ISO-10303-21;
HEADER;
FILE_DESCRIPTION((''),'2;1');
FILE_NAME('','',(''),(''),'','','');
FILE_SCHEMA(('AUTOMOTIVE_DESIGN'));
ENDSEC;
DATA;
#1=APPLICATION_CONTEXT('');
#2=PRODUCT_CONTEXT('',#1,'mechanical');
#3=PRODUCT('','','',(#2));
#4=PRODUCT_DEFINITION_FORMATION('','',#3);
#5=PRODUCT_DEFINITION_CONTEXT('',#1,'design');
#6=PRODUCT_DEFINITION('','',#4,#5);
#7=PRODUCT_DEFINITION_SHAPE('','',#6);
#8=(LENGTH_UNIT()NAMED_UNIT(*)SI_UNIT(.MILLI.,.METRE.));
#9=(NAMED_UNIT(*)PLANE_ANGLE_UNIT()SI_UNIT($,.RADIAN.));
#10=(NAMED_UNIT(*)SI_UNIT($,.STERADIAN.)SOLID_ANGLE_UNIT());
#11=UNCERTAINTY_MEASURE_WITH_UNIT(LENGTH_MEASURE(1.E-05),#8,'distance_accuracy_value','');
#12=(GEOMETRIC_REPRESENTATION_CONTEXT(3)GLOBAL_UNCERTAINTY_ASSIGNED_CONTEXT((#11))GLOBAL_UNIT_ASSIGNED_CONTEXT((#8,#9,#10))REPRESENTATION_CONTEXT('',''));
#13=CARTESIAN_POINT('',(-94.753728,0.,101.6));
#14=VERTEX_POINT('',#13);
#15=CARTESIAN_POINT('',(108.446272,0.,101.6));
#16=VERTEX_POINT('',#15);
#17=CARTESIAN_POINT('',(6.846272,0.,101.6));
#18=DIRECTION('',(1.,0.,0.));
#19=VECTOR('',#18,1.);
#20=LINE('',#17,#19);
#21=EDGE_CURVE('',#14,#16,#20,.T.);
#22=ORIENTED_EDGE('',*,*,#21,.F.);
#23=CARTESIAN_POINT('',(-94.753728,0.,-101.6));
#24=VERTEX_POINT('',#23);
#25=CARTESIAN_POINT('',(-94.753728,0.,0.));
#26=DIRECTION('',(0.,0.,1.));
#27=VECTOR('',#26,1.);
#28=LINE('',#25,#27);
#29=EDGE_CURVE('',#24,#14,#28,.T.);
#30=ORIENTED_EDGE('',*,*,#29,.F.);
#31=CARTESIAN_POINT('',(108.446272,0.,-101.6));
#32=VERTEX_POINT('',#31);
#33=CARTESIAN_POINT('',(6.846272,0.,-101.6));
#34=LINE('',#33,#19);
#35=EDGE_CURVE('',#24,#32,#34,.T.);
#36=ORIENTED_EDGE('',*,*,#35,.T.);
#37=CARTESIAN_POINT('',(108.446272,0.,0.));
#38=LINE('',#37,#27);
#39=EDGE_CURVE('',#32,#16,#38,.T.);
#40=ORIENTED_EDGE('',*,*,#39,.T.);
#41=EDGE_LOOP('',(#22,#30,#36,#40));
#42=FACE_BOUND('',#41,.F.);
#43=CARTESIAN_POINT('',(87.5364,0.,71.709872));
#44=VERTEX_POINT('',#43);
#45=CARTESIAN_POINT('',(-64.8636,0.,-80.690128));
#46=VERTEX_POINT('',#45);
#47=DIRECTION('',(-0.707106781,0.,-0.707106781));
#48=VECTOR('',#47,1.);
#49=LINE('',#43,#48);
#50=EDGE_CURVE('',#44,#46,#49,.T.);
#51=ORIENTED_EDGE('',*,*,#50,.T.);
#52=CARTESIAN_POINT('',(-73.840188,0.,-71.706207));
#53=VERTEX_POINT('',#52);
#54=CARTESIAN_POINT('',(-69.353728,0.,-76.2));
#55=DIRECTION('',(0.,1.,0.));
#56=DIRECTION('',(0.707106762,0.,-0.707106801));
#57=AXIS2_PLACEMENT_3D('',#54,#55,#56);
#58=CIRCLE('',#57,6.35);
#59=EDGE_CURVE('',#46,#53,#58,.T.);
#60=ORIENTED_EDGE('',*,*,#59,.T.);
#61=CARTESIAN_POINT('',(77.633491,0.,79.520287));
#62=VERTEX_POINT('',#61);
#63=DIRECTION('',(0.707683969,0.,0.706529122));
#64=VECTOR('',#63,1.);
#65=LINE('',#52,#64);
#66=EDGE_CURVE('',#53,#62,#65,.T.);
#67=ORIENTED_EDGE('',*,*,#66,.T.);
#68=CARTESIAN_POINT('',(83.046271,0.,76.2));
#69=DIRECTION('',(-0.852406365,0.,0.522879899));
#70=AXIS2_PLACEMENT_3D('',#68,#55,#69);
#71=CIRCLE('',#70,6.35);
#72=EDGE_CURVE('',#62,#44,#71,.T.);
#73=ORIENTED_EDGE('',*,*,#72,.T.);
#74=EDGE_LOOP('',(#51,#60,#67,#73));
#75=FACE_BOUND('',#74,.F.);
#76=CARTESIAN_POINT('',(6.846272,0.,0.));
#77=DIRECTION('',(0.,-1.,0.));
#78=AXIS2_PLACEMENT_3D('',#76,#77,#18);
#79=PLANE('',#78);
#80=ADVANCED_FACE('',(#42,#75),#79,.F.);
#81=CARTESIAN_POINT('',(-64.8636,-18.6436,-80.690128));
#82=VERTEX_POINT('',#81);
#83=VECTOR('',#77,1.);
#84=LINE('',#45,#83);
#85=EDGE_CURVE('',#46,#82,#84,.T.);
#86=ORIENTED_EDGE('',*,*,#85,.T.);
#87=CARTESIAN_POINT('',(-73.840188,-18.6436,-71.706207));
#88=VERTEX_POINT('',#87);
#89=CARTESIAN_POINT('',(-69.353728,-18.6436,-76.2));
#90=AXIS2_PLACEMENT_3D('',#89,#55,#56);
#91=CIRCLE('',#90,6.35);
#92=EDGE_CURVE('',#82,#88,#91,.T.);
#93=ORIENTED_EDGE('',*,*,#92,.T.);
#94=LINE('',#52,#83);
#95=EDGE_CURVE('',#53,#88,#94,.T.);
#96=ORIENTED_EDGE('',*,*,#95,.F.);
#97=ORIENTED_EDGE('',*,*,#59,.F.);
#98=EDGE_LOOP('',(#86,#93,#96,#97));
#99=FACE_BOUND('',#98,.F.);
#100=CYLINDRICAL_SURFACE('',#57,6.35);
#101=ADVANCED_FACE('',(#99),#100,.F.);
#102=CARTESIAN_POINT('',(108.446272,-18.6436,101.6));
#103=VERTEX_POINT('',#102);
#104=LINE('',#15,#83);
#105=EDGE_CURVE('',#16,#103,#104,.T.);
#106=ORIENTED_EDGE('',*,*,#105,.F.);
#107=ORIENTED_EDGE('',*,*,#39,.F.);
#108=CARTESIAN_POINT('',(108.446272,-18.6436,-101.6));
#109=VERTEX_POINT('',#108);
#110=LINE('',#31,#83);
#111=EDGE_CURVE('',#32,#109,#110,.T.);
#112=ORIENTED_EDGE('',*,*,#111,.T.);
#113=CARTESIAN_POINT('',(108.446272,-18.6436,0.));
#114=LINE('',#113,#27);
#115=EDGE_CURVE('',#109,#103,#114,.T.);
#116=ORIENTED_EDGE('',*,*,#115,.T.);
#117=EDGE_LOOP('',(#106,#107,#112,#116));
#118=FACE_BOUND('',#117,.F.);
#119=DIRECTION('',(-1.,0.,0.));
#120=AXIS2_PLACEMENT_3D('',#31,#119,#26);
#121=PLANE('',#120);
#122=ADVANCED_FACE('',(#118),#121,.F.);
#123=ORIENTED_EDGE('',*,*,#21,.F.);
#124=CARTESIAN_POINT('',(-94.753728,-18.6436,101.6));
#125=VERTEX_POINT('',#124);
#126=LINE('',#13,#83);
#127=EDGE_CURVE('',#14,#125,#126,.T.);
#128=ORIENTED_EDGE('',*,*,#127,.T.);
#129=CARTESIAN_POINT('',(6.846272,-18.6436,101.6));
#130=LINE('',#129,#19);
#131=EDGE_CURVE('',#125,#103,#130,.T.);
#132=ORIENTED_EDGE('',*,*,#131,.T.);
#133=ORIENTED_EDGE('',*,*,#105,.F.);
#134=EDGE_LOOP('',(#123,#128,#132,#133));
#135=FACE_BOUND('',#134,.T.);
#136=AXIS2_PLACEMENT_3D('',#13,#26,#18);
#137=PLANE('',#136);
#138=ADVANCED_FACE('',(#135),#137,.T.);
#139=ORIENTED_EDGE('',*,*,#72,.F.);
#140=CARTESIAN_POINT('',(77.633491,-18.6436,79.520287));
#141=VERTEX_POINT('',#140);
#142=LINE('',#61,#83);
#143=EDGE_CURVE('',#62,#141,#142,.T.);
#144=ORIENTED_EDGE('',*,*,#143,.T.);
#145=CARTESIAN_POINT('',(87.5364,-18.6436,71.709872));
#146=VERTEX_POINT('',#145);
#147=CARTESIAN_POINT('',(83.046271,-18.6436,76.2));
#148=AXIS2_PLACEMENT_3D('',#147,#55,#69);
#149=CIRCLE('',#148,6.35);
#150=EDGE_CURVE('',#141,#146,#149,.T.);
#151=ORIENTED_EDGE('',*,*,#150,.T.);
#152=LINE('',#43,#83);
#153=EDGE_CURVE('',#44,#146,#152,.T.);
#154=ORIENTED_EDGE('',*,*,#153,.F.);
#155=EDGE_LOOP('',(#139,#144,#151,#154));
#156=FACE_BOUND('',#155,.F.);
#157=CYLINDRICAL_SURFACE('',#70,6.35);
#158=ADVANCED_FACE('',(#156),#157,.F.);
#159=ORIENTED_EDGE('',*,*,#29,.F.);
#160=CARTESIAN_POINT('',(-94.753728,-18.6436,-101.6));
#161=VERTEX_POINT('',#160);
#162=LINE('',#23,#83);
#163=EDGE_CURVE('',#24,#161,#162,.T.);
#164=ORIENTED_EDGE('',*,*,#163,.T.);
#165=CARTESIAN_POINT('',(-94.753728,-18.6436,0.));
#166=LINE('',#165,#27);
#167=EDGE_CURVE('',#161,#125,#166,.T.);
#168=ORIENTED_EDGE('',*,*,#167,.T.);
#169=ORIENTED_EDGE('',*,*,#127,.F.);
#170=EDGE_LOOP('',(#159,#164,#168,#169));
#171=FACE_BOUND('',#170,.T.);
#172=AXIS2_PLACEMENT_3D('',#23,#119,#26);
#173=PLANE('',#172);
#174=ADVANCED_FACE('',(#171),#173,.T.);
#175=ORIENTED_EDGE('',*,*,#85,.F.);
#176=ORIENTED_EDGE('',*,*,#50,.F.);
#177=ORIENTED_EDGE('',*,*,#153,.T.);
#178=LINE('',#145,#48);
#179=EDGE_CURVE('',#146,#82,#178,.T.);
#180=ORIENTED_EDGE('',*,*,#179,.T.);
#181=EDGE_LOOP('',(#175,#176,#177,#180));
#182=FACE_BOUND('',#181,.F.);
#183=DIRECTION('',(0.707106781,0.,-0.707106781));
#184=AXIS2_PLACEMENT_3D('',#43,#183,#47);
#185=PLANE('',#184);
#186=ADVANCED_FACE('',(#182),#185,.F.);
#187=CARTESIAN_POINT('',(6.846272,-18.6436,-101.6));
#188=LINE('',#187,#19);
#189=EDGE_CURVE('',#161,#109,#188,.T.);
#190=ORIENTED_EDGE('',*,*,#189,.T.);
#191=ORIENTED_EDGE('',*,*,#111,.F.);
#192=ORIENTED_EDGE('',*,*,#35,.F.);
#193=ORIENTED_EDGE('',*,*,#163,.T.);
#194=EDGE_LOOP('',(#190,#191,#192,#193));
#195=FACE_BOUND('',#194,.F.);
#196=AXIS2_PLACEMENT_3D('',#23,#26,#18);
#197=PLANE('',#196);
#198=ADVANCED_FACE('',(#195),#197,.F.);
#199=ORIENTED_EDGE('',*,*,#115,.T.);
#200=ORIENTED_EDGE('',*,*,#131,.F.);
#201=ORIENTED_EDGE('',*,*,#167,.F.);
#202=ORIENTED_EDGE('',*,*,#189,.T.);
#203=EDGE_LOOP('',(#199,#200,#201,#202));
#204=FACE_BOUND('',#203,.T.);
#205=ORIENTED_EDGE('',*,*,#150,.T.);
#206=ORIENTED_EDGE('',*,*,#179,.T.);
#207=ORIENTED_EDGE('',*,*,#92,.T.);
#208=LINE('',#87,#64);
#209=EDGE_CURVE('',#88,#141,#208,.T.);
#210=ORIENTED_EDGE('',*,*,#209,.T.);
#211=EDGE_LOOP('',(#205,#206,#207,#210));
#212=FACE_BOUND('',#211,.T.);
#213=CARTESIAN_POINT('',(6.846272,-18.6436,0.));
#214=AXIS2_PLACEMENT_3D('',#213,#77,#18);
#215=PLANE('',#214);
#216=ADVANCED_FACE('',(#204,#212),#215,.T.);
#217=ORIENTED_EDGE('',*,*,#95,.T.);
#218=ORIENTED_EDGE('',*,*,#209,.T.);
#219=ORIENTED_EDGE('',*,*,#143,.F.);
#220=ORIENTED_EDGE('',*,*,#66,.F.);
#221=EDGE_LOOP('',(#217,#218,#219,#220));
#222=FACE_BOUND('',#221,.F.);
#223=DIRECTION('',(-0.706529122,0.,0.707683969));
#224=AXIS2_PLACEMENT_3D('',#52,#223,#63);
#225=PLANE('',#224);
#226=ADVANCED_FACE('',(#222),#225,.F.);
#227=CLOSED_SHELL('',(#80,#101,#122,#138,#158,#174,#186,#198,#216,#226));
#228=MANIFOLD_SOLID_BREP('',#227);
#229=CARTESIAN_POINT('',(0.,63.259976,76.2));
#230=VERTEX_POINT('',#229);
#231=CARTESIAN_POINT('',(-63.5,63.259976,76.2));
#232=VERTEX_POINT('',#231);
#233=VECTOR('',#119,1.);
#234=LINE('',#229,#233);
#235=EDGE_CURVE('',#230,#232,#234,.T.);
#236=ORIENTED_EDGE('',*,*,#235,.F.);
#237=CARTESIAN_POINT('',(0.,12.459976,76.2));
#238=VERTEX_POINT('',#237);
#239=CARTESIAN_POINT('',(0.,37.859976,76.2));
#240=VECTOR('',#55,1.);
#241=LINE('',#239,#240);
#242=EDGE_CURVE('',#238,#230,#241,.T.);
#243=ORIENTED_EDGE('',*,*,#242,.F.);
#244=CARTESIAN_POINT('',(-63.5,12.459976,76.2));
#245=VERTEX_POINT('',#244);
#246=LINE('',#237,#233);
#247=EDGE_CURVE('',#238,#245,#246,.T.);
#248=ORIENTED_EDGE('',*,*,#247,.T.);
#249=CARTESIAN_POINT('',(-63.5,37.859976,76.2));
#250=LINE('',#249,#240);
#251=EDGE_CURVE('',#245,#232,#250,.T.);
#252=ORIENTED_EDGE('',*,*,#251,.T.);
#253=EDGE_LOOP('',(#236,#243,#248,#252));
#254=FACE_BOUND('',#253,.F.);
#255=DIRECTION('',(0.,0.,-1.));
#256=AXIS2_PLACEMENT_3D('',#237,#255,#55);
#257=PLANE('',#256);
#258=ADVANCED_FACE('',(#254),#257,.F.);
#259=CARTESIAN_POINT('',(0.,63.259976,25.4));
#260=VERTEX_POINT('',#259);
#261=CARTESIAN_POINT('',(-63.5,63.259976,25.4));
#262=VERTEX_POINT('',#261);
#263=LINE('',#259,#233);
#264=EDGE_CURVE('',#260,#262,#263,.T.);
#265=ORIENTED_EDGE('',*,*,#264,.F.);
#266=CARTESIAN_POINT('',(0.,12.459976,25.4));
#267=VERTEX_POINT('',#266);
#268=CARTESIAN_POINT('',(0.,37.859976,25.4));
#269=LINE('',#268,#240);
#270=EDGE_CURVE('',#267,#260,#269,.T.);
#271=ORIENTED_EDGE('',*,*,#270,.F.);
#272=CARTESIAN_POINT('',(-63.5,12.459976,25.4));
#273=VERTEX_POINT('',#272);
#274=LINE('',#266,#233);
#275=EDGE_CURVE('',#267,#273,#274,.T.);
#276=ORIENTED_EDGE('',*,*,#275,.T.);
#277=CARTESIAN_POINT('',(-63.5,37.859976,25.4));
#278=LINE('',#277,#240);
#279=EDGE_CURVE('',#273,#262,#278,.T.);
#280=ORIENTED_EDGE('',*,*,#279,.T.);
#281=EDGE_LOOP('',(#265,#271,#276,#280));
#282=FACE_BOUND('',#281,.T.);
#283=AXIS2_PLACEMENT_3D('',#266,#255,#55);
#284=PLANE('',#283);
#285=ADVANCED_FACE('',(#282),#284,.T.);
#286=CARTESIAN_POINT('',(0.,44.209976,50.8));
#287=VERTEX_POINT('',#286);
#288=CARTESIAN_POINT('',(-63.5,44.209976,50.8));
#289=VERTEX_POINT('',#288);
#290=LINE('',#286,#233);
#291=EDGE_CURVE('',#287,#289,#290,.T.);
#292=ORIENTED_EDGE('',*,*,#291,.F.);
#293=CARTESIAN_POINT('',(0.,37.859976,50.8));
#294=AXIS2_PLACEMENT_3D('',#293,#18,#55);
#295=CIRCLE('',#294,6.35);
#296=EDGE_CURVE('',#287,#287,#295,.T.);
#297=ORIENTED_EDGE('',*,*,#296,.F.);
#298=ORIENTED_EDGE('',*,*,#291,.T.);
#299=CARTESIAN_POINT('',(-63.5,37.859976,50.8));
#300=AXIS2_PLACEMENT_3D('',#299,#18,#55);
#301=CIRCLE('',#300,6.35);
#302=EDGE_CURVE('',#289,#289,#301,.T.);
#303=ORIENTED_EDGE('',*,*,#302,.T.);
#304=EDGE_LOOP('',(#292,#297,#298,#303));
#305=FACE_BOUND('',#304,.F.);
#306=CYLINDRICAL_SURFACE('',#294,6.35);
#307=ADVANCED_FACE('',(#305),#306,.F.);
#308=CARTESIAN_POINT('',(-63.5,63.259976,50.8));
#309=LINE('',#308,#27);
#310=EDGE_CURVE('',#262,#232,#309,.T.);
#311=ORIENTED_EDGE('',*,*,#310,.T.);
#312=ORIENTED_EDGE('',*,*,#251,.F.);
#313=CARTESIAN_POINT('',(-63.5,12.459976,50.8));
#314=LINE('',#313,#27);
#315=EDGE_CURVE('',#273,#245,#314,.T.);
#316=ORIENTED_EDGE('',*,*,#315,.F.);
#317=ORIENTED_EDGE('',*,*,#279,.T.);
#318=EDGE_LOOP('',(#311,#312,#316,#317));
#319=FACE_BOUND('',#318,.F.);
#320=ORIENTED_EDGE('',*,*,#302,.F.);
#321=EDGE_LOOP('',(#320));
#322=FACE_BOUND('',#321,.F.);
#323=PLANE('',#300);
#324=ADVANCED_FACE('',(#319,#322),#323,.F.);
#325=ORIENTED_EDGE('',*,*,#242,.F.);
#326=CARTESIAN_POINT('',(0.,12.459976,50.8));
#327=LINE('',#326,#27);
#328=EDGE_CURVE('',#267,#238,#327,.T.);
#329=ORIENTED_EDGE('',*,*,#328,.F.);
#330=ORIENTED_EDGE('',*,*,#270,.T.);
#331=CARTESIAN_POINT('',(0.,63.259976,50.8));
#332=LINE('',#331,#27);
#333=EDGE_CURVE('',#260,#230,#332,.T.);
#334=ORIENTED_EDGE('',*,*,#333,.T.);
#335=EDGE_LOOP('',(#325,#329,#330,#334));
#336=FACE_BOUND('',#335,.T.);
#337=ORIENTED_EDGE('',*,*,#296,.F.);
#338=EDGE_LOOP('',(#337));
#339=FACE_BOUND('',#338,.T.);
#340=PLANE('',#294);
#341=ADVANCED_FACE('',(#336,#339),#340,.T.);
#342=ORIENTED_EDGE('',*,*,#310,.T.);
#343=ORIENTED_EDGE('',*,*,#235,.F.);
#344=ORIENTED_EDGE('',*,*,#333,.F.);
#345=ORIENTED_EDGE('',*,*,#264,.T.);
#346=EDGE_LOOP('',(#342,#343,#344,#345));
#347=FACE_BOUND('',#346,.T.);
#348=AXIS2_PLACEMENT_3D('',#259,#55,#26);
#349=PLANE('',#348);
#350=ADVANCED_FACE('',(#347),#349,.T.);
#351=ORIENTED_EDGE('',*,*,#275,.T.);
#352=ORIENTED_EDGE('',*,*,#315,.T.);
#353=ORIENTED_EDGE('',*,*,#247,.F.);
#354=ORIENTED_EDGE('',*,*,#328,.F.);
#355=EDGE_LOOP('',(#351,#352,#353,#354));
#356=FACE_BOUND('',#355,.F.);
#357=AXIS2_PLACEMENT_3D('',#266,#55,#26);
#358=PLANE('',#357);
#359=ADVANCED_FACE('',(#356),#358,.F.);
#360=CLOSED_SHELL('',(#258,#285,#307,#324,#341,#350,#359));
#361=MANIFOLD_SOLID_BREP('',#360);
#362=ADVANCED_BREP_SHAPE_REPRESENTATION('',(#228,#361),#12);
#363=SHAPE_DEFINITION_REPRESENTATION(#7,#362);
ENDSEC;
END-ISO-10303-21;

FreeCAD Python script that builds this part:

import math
import FreeCAD as App
import Part
import Sketcher
from FreeCAD import Vector
Q = App.Units.Quantity


def add_polygon(sketch, points):
    """Adds a closed chain of lines whose ends are joined by coincident constraints."""
    first, n = sketch.GeometryCount, len(points)
    for a, b in zip(points, points[1:] + points[:1]):
        sketch.addGeometry(Part.LineSegment(App.Vector(*a, 0), App.Vector(*b, 0)), False)
    for i in range(n):
        sketch.addConstraint(Sketcher.Constraint("Coincident", first + i, 2, first + (i + 1) % n, 1))

doc = App.newDocument("Part")
params = doc.addObject("Spreadsheet::Sheet", "Params")
for row, (alias, value) in enumerate([
    ("sketch1_width", "8 in"),
    ("sketch1_radius", "0.25 in"),
    ("pad1_length", "0.734 in"),
    ("sketch2_width", "2 in"),
    ("pad2_length", "2.5 in"),
    ("sketch3_diameter", "0.5 in"),
], start=1):
    params.set(f"A{row}", alias)
    params.set(f"B{row}", "=" + value)
    params.setAlias(f"B{row}", alias)

body = doc.addObject("PartDesign::Body", "Body")

# Sketch on XZ plane
sketch1 = doc.addObject("Sketcher::SketchObject", "Sketch")
body.addObject(sketch1)
sketch1.AttachmentSupport = (doc.XZ_Plane, [""])
sketch1.MapMode = "FlatFace"
add_polygon(sketch1, [(-95, 102), (-95, -102), (108, -102), (108, 102)])  # lines 0-3
sketch1.addGeometry(Part.LineSegment(Vector(88, 72, 0), Vector(-65, -81, 0)), False)  # 4
sketch1.addGeometry(Part.ArcOfCircle(Part.Circle(Vector(-69, -76, 0), Vector(0, 0, 1), 6), math.radians(135), math.radians(315)), False)  # 5
sketch1.addGeometry(Part.LineSegment(Vector(-74, -72, 0), Vector(78, 80, 0)), False)  # 6
sketch1.addGeometry(Part.ArcOfCircle(Part.Circle(Vector(83, 76, 0), Vector(0, 0, 1), 6), math.radians(-45), math.radians(148)), False)  # 7
sketch1.addConstraint(Sketcher.Constraint("Tangent", 4, 2, 5, 2))
sketch1.addConstraint(Sketcher.Constraint("Tangent", 5, 1, 6, 1))
sketch1.addConstraint(Sketcher.Constraint("Coincident", 6, 2, 7, 2))
sketch1.addConstraint(Sketcher.Constraint("Tangent", 7, 1, 4, 1))
sketch1.addConstraint(Sketcher.Constraint("Vertical", 0))
sketch1.addConstraint(Sketcher.Constraint("Horizontal", 1))
sketch1.addConstraint(Sketcher.Constraint("Vertical", 2))
sketch1.addConstraint(Sketcher.Constraint("Horizontal", 3))
sketch1.addConstraint(Sketcher.Constraint("Equal", 5, 7))
sketch1.addConstraint(Sketcher.Constraint("Equal", 3, 0))
sketch1.addConstraint(Sketcher.Constraint("DistanceX", 1, 1, 1, 2, Q("8 in")))
sketch1.addConstraint(Sketcher.Constraint("Radius", 5, Q("0.25 in")))
sketch1.addConstraint(Sketcher.Constraint("DistanceY", 5, 3, -1, 1, Q("3 in")))
sketch1.addConstraint(Sketcher.Constraint("DistanceY", -1, 1, 7, 3, Q("3 in")))
sketch1.addConstraint(Sketcher.Constraint("DistanceY", 0, 2, -1, 1, Q("4 in")))
sketch1.addConstraint(Sketcher.Constraint("Angle", 4, Q("-135 deg")))
sketch1.addConstraint(Sketcher.Constraint("DistanceX", 0, 2, 5, 3, Q("1 in")))
sketch1.addConstraint(Sketcher.Constraint("DistanceX", 4, 2, -1, 1, Q("64.8636 mm")))
sketch1.addConstraint(Sketcher.Constraint("DistanceX", -1, 1, 6, 2, Q("77.633491 mm")))
sketch1.setExpression("Constraints[14]", "Params.sketch1_width")
sketch1.setExpression("Constraints[15]", "Params.sketch1_radius")
pad1 = doc.addObject("PartDesign::Pad", "Pad")
body.addObject(pad1)
pad1.Profile = sketch1
pad1.setExpression("Length", "Params.pad1_length")
body2 = doc.addObject("PartDesign::Body", "Body001")

# Sketch on YZ plane
sketch2 = doc.addObject("Sketcher::SketchObject", "Sketch001")
body2.addObject(sketch2)
sketch2.AttachmentSupport = (doc.getObject("YZ_Plane001"), [""])
sketch2.MapMode = "FlatFace"
add_polygon(sketch2, [(12, 76), (12, 25), (63, 25), (63, 76)])  # lines 0-3
sketch2.addConstraint(Sketcher.Constraint("Vertical", 0))
sketch2.addConstraint(Sketcher.Constraint("Horizontal", 1))
sketch2.addConstraint(Sketcher.Constraint("Vertical", 2))
sketch2.addConstraint(Sketcher.Constraint("Horizontal", 3))
sketch2.addConstraint(Sketcher.Constraint("Equal", 3, 0))
sketch2.addConstraint(Sketcher.Constraint("DistanceX", 1, 1, 1, 2, Q("2 in")))
sketch2.addConstraint(Sketcher.Constraint("DistanceY", -1, 1, 0, 2, Q("1 in")))
sketch2.addConstraint(Sketcher.Constraint("DistanceX", -1, 1, 0, 2, Q("12.459976 mm")))
sketch2.setExpression("Constraints[9]", "Params.sketch2_width")
pad2 = doc.addObject("PartDesign::Pad", "Pad001")
body2.addObject(pad2)
pad2.Profile = sketch2
pad2.setExpression("Length", "Params.pad2_length")
pad2.Reversed = True

# Sketch on YZ plane
sketch3 = doc.addObject("Sketcher::SketchObject", "Sketch002")
body2.addObject(sketch3)
sketch3.AttachmentSupport = (doc.getObject("YZ_Plane001"), [""])
sketch3.MapMode = "FlatFace"
sketch3.addGeometry(Part.Circle(Vector(38, 51, 0), Vector(0, 0, 1), 6), False)
sketch3.addConstraint(Sketcher.Constraint("Diameter", 0, Q("0.5 in")))
sketch3.addConstraint(Sketcher.Constraint("DistanceY", -1, 1, 0, 3, Q("2 in")))
sketch3.addConstraint(Sketcher.Constraint("DistanceX", -1, 1, 0, 3, Q("37.859976 mm")))
sketch3.setExpression("Constraints[0]", "Params.sketch3_diameter")
pocket1 = doc.addObject("PartDesign::Pocket", "Pocket")
body2.addObject(pocket1)
pocket1.Profile = sketch3
pocket1.Type = "ThroughAll"

doc.recompute()
